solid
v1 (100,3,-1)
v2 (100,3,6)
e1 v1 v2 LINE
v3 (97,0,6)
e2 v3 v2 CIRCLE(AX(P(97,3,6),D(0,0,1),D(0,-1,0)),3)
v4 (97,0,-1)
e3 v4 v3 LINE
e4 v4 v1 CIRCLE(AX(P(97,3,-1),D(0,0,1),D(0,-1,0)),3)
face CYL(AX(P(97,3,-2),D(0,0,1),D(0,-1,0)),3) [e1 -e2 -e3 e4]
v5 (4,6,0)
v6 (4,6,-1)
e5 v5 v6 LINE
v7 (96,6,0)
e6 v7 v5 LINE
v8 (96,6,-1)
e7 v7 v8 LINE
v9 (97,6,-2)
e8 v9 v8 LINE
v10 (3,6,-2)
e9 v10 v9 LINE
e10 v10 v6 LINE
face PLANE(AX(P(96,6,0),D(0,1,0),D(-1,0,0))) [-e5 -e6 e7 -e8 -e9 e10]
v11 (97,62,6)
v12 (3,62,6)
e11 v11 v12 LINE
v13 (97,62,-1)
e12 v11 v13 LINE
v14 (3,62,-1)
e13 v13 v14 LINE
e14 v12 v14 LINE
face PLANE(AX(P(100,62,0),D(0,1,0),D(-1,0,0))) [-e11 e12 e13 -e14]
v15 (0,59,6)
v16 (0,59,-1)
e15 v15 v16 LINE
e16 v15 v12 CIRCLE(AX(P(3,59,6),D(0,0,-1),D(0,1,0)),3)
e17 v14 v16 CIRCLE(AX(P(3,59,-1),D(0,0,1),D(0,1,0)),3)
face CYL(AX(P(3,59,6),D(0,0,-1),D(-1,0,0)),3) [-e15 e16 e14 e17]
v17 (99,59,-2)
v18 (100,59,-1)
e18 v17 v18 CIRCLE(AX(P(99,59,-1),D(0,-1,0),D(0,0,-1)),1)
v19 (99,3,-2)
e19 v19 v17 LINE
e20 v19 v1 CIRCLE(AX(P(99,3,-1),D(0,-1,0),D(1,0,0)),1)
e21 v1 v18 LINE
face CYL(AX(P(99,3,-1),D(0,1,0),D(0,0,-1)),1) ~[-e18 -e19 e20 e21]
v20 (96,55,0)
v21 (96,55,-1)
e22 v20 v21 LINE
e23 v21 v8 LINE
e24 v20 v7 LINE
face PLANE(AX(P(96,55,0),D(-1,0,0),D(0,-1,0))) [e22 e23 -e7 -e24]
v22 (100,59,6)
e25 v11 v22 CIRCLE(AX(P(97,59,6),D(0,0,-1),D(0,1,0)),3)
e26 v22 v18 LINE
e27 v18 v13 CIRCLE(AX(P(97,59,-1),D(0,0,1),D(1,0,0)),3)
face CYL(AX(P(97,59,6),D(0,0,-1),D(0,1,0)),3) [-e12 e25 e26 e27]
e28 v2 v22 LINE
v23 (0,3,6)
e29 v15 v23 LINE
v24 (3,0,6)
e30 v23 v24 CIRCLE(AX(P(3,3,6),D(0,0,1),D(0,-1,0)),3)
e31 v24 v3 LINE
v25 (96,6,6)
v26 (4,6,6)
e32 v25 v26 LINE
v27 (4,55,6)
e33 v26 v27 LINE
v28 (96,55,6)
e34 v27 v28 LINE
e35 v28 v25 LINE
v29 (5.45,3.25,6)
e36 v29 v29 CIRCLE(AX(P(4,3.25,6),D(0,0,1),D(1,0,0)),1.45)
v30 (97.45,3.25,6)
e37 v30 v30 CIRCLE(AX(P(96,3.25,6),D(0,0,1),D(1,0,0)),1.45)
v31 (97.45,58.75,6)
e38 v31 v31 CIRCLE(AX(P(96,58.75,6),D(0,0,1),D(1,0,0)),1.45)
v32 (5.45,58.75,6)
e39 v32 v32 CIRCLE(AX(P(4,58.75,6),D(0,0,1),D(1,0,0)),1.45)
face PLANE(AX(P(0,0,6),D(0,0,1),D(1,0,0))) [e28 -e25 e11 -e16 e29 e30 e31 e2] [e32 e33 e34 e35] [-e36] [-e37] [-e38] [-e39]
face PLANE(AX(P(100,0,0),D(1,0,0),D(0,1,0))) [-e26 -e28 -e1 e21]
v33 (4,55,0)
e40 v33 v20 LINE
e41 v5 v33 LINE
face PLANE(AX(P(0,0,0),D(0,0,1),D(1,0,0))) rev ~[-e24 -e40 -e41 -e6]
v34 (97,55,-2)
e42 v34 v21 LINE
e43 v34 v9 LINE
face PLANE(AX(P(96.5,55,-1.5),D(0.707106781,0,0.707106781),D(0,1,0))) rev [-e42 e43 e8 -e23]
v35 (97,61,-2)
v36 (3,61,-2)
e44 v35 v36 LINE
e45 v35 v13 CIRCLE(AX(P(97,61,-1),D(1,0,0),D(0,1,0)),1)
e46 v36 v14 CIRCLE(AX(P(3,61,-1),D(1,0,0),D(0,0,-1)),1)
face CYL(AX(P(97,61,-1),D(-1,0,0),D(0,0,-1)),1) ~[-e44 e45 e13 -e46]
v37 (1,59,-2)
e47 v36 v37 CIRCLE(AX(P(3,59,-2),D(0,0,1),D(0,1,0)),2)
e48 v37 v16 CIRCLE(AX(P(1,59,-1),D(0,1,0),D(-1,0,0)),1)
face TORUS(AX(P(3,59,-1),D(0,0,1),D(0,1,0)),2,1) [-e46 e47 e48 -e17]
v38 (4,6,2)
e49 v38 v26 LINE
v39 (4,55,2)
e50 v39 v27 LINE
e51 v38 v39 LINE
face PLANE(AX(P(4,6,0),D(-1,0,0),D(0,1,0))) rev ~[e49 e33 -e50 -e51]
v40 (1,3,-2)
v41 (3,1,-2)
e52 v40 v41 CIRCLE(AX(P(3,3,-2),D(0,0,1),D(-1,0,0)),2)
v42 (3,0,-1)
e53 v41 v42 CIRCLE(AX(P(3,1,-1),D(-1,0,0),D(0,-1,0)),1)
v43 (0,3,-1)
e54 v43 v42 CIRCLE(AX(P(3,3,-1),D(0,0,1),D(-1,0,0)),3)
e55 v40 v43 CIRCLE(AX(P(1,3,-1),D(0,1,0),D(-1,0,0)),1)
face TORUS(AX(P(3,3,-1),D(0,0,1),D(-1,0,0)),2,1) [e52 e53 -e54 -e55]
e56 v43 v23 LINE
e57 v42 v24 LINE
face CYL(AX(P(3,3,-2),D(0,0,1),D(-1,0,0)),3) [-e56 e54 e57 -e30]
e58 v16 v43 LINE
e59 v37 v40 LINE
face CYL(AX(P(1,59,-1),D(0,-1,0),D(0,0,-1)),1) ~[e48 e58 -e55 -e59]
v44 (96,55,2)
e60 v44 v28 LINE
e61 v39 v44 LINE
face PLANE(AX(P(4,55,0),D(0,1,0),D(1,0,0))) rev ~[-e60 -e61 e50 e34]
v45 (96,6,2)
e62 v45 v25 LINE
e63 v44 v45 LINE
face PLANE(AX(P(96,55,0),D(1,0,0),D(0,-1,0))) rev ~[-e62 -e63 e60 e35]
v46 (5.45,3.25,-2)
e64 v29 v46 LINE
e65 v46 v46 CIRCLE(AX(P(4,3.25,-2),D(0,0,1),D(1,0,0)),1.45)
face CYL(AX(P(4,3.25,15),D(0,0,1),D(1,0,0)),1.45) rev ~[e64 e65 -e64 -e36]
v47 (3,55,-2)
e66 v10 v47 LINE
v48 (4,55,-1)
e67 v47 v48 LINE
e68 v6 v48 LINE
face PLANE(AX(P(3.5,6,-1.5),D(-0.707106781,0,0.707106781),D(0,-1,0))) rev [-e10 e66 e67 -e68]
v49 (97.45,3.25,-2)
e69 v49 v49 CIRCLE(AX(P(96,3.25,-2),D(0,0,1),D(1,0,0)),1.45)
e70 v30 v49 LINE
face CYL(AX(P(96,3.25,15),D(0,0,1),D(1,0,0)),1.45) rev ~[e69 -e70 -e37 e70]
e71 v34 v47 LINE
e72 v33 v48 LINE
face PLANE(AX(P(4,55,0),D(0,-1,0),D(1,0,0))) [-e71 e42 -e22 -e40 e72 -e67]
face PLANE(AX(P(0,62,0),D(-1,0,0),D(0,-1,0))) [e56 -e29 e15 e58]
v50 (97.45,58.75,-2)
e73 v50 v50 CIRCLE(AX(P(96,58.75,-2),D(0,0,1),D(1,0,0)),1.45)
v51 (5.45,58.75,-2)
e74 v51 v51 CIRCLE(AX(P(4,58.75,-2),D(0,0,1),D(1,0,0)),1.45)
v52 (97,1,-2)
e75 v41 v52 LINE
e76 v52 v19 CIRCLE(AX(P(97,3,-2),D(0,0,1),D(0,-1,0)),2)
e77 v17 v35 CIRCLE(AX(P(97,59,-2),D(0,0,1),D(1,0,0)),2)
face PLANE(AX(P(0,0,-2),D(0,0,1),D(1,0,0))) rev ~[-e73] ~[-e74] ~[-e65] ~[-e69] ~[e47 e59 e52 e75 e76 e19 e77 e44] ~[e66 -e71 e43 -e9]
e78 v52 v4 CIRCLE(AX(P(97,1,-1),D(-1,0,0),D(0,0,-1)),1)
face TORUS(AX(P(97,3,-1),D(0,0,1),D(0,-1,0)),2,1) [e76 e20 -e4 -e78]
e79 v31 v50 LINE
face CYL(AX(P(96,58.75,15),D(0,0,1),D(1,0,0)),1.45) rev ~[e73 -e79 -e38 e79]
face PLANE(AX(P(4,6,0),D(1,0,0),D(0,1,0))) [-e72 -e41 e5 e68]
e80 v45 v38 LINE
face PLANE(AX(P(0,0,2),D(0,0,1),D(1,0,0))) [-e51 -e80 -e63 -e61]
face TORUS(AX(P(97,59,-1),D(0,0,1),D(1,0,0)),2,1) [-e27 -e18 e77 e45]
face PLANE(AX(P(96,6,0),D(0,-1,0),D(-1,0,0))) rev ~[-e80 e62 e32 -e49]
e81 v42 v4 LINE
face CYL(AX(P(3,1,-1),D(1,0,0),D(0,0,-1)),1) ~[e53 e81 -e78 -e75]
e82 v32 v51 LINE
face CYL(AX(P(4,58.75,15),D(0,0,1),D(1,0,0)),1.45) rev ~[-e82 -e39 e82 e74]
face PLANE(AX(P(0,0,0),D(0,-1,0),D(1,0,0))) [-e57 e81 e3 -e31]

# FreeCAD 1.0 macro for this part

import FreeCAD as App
import Part
import Sketcher
from FreeCAD import Vector


def edges_at(feature, points):
    """Names of the edges that pass closest to the given points."""
    edges = feature.Shape.Edges
    near = lambda p: min(range(len(edges)), key=lambda i: edges[i].distToShape(Part.Vertex(*p))[0])
    return sorted({f"Edge{near(p) + 1}" for p in points})


def add_polygon(sketch, points):
    """Adds a closed chain of lines whose ends are joined by coincident constraints."""
    first, n = sketch.GeometryCount, len(points)
    for a, b in zip(points, points[1:] + points[:1]):
        sketch.addGeometry(Part.LineSegment(App.Vector(*a, 0), App.Vector(*b, 0)), False)
    for i in range(n):
        sketch.addConstraint(Sketcher.Constraint("Coincident", first + i, 2, first + (i + 1) % n, 1))

doc = App.newDocument("Part")
body = doc.addObject("PartDesign::Body", "Body")

sketch1 = body.newObject("Sketcher::SketchObject", "Sketch")
sketch1.AttachmentSupport = (doc.getObject("XY_Plane"), [""])
sketch1.MapMode = "FlatFace"
add_polygon(sketch1, [(96, 55), (4, 55), (4, 6), (96, 6)])
sketch1.addConstraint([
    Sketcher.Constraint("Horizontal", 0),
    Sketcher.Constraint("Vertical", 1),
    Sketcher.Constraint("Horizontal", 2),
    Sketcher.Constraint("Vertical", 3),
    Sketcher.Constraint("DistanceX", 0, 2, 0, 1, 92.0),
    Sketcher.Constraint("DistanceY", 1, 2, 1, 1, 49.0),
    Sketcher.Constraint("DistanceX", -1, 1, 0, 2, 4.0),
    Sketcher.Constraint("DistanceY", -1, 1, 1, 2, 6.0),
])
pad1 = body.newObject("PartDesign::Pad", "Pad")
pad1.Profile = sketch1
pad1.Length = 2

sketch2 = body.newObject("Sketcher::SketchObject", "Sketch001")
sketch2.AttachmentSupport = (doc.getObject("XY_Plane"), [""])
sketch2.MapMode = "FlatFace"
add_polygon(sketch2, [(0, 62), (0, 0), (100, 0), (100, 62)])
add_polygon(sketch2, [(4, 6), (4, 55), (96, 55), (96, 6)])
sketch2.addConstraint([
    Sketcher.Constraint("Vertical", 0),
    Sketcher.Constraint("Horizontal", 1),
    Sketcher.Constraint("Vertical", 2),
    Sketcher.Constraint("Horizontal", 3),
    Sketcher.Constraint("Vertical", 4),
    Sketcher.Constraint("Horizontal", 5),
    Sketcher.Constraint("Vertical", 6),
    Sketcher.Constraint("Horizontal", 7),
    Sketcher.Constraint("Coincident", 0, 2, -1, 1),
    Sketcher.Constraint("DistanceX", 1, 1, 1, 2, 100.0),
    Sketcher.Constraint("DistanceX", 5, 1, 5, 2, 92.0),
    Sketcher.Constraint("DistanceY", 0, 2, 0, 1, 62.0),
    Sketcher.Constraint("DistanceY", 4, 1, 4, 2, 49.0),
    Sketcher.Constraint("DistanceX", -1, 1, 4, 2, 4.0),
    Sketcher.Constraint("DistanceY", -1, 1, 6, 2, 6.0),
])
pad2 = body.newObject("PartDesign::Pad", "Pad001")
pad2.Profile = sketch2
pad2.Length = 6

sketch3 = body.newObject("Sketcher::SketchObject", "Sketch002")
sketch3.AttachmentSupport = (doc.getObject("XY_Plane"), [""])
sketch3.MapMode = "FlatFace"
add_polygon(sketch3, [(0, 62), (0, 0), (100, 0), (100, 62)])
add_polygon(sketch3, [(4, 6), (4, 55), (96, 55), (96, 6)])
sketch3.addConstraint([
    Sketcher.Constraint("Vertical", 0),
    Sketcher.Constraint("Horizontal", 1),
    Sketcher.Constraint("Vertical", 2),
    Sketcher.Constraint("Horizontal", 3),
    Sketcher.Constraint("Vertical", 4),
    Sketcher.Constraint("Horizontal", 5),
    Sketcher.Constraint("Vertical", 6),
    Sketcher.Constraint("Horizontal", 7),
    Sketcher.Constraint("Coincident", 0, 2, -1, 1),
    Sketcher.Constraint("DistanceX", 1, 1, 1, 2, 100.0),
    Sketcher.Constraint("DistanceX", 5, 1, 5, 2, 92.0),
    Sketcher.Constraint("DistanceY", 0, 2, 0, 1, 62.0),
    Sketcher.Constraint("DistanceY", 4, 1, 4, 2, 49.0),
    Sketcher.Constraint("DistanceX", -1, 1, 4, 2, 4.0),
    Sketcher.Constraint("DistanceY", -1, 1, 6, 2, 6.0),
])
pad3 = body.newObject("PartDesign::Pad", "Pad002")
pad3.Profile = sketch3
pad3.Length = 2
pad3.Reversed = True

sketch4 = body.newObject("Sketcher::SketchObject", "Sketch003")
sketch4.AttachmentSupport = (doc.getObject("XY_Plane"), [""])
sketch4.MapMode = "FlatFace"
sketch4.AttachmentOffset = App.Placement(Vector(0, 0, 15), App.Rotation())
sketch4.addGeometry([
    Part.Circle(Vector(4, 3.2, 0), Vector(0, 0, 1), 1.4),
    Part.Circle(Vector(96, 3.2, 0), Vector(0, 0, 1), 1.4),
    Part.Circle(Vector(96, 58.8, 0), Vector(0, 0, 1), 1.4),
    Part.Circle(Vector(4, 58.8, 0), Vector(0, 0, 1), 1.4),
], False)
sketch4.addConstraint([
    Sketcher.Constraint("Equal", 0, 1),
    Sketcher.Constraint("Equal", 1, 2),
    Sketcher.Constraint("Equal", 2, 3),
    Sketcher.Constraint("Horizontal", 0, 3, 1, 3),
    Sketcher.Constraint("Horizontal", 2, 3, 3, 3),
    Sketcher.Constraint("Vertical", 1, 3, 2, 3),
    Sketcher.Constraint("Vertical", 0, 3, 3, 3),
    Sketcher.Constraint("Diameter", 0, 2.9),
    Sketcher.Constraint("DistanceX", -1, 1, 0, 3, 4.0),
    Sketcher.Constraint("DistanceY", -1, 1, 0, 3, 3.25),
    Sketcher.Constraint("DistanceX", -1, 1, 1, 3, 96.0),
    Sketcher.Constraint("DistanceY", 1, 3, 2, 3, 55.5),
])
pocket1 = body.newObject("PartDesign::Pocket", "Pocket")
pocket1.Profile = sketch4
pocket1.Length = 25
doc.recompute()

fillet = body.newObject("PartDesign::Fillet", "Fillet")
fillet.Base = (pocket1, edges_at(pocket1, [
    (100, 62, 2),
    (100, 0, 2),
    (0, 62, 2),
    (0, 0, 2),
]))
fillet.Radius = 3
doc.recompute()

fillet2 = body.newObject("PartDesign::Fillet", "Fillet001")
fillet2.Base = (fillet, edges_at(fillet, [
    (0.879, 0.879, -2),
    (0, 31, -2),
    (0.879, 61.121, -2),
    (50, 62, -2),
    (99.121, 61.121, -2),
    (100, 31, -2),
    (99.121, 0.879, -2),
    (50, 0, -2),
]))
fillet2.Radius = 1
doc.recompute()

chamfer = body.newObject("PartDesign::Chamfer", "Chamfer")
chamfer.Base = (fillet2, edges_at(fillet2, [(96, 30.5, -2)]))
chamfer.Size = 1
doc.recompute()

chamfer2 = body.newObject("PartDesign::Chamfer", "Chamfer001")
chamfer2.Base = (chamfer, edges_at(chamfer, [(4, 30.5, -2)]))
chamfer2.Size = 1

doc.recompute()
